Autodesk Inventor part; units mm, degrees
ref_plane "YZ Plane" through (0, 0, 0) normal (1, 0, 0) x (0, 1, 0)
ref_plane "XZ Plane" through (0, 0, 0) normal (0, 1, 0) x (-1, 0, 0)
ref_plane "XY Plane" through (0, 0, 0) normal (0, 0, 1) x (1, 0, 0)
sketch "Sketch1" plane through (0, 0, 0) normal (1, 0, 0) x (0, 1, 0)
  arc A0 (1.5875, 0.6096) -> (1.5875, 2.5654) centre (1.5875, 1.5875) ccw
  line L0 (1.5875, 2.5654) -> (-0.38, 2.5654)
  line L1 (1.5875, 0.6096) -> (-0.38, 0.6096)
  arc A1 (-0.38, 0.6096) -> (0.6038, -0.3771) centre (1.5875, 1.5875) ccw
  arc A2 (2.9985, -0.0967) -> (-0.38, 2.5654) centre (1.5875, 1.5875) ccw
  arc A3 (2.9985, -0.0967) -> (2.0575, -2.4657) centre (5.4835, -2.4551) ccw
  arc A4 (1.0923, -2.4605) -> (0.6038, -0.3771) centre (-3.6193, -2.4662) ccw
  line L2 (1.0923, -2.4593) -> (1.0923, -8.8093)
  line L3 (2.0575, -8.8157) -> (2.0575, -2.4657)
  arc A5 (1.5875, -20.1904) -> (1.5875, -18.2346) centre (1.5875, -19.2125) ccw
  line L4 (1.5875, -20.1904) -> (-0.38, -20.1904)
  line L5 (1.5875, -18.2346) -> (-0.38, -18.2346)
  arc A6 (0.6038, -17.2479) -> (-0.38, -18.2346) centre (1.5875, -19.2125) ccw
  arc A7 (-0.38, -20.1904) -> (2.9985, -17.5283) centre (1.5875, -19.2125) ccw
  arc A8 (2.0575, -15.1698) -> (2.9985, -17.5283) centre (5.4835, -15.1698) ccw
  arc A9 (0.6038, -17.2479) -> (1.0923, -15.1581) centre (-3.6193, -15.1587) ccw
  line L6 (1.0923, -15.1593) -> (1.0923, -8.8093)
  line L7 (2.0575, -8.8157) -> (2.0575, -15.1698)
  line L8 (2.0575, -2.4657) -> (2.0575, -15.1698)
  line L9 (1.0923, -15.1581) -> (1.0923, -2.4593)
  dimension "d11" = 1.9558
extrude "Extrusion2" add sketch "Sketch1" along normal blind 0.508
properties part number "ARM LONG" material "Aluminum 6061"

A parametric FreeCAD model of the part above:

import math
import FreeCAD as App
import Part
import Sketcher
Q = App.Units.Quantity

doc = App.newDocument("Part")
body = doc.addObject("PartDesign::Body", "Body")

# Sketch on YZ plane
sketch1 = doc.addObject("Sketcher::SketchObject", "Sketch")
body.addObject(sketch1)
sketch1.AttachmentSupport = (doc.YZ_Plane, [""])
sketch1.MapMode = "FlatFace"
sketch1.addGeometry([
    Part.ArcOfCircle(Part.Circle(App.Vector(1.5875, 1.5875, 0), App.Vector(0, 0, 1), 0.9779), math.radians(-90), math.radians(90)),  # 0
    Part.LineSegment(App.Vector(1.5875, 0.6096, 0), App.Vector(-0.38, 0.6096, 0)),  # 1
    Part.ArcOfCircle(Part.Circle(App.Vector(1.5875, 1.5875, 0), App.Vector(0, 0, 1), 2.197122), math.radians(-153.571398), math.radians(-116.597706)),  # 2
    Part.ArcOfCircle(Part.Circle(App.Vector(-3.6193, -2.4662, 0), App.Vector(0, 0, 1), 4.711603), math.radians(0.069315), math.radians(26.320866)),  # 3
    Part.LineSegment(App.Vector(1.0923, -2.4605, 0), App.Vector(1.0923, -15.1581, 0)),  # 4
    Part.ArcOfCircle(Part.Circle(App.Vector(-3.6193, -15.1587, 0), App.Vector(0, 0, 1), 4.711617), math.radians(-26.321956), math.radians(0.007296)),  # 5
    Part.ArcOfCircle(Part.Circle(App.Vector(1.5875, -19.2125, 0), App.Vector(0, 0, 1), 2.197122), math.radians(116.597706), math.radians(153.571398)),  # 6
    Part.LineSegment(App.Vector(-0.38, -18.2346, 0), App.Vector(1.5875, -18.2346, 0)),  # 7
    Part.ArcOfCircle(Part.Circle(App.Vector(1.5875, -19.2125, 0), App.Vector(0, 0, 1), 0.9779), math.radians(-90), math.radians(90)),  # 8
    Part.LineSegment(App.Vector(1.5875, -20.1904, 0), App.Vector(-0.38, -20.1904, 0)),  # 9
    Part.ArcOfCircle(Part.Circle(App.Vector(1.5875, -19.2125, 0), App.Vector(0, 0, 1), 2.197122), math.radians(-153.571398), math.radians(50.04418)),  # 10
    Part.ArcOfCircle(Part.Circle(App.Vector(5.4835, -15.1698, 0), App.Vector(0, 0, 1), 3.426), math.radians(180), math.radians(223.503919)),  # 11
    Part.LineSegment(App.Vector(2.0575, -15.1698, 0), App.Vector(2.0575, -2.4657, 0)),  # 12
    Part.ArcOfCircle(Part.Circle(App.Vector(5.4835, -2.4551, 0), App.Vector(0, 0, 1), 3.425971), math.radians(136.497294), math.radians(180.177272)),  # 13
    Part.ArcOfCircle(Part.Circle(App.Vector(1.5875, 1.5875, 0), App.Vector(0, 0, 1), 2.197146), math.radians(-50.04418), math.radians(153.571398)),  # 14
    Part.LineSegment(App.Vector(-0.38, 2.5654, 0), App.Vector(1.5875, 2.5654, 0)),  # 15
], False)
sketch1.addConstraint([
    Sketcher.Constraint("Coincident", 0, 1, 1, 1),
    Sketcher.Constraint("Coincident", 1, 2, 2, 1),
    Sketcher.Constraint("Coincident", 2, 2, 3, 2),
    Sketcher.Constraint("Coincident", 3, 1, 4, 1),
    Sketcher.Constraint("Coincident", 4, 2, 5, 2),
    Sketcher.Constraint("Coincident", 5, 1, 6, 1),
    Sketcher.Constraint("Coincident", 6, 2, 7, 1),
    Sketcher.Constraint("Coincident", 7, 2, 8, 2),
    Sketcher.Constraint("Coincident", 8, 1, 9, 1),
    Sketcher.Constraint("Coincident", 9, 2, 10, 1),
    Sketcher.Constraint("Coincident", 10, 2, 11, 2),
    Sketcher.Constraint("Coincident", 11, 1, 12, 1),
    Sketcher.Constraint("Coincident", 12, 2, 13, 2),
    Sketcher.Constraint("Coincident", 13, 1, 14, 1),
    Sketcher.Constraint("Coincident", 14, 2, 15, 1),
    Sketcher.Constraint("Coincident", 15, 2, 0, 2),
    Sketcher.Constraint("Horizontal", 1),
    Sketcher.Constraint("Vertical", 4),
    Sketcher.Constraint("Horizontal", 7),
    Sketcher.Constraint("Horizontal", 9),
    Sketcher.Constraint("Vertical", 12),
    Sketcher.Constraint("Horizontal", 15),
    Sketcher.Constraint("Coincident", 2, 3, 0, 3),
    Sketcher.Constraint("Coincident", 8, 3, 6, 3),
    Sketcher.Constraint("Coincident", 10, 3, 6, 3),
    Sketcher.Constraint("Coincident", 14, 3, 0, 3),
    Sketcher.Constraint("Radius", 0, Q("0.0385 in")),
    Sketcher.Constraint("Radius", 8, Q("0.0385 in")),
    Sketcher.Constraint("Radius", 2, Q("0.0865 in")),
    Sketcher.Constraint("Radius", 3, Q("0.1855 in")),
    Sketcher.Constraint("Radius", 5, Q("0.1855 in")),
    Sketcher.Constraint("Radius", 6, Q("0.0865 in")),
    Sketcher.Constraint("Radius", 10, Q("0.0865 in")),
    Sketcher.Constraint("Radius", 14, Q("0.0865 in")),
    Sketcher.Constraint("Radius", 11, Q("3.426 mm")),
    Sketcher.Constraint("Radius", 13, Q("3.426 mm")),
    Sketcher.Constraint("DistanceY", 4, 2, 4, 1, Q("0.4999 in")),
    Sketcher.Constraint("DistanceX", -1, 1, 0, 3, Q("0.0625 in")),
    Sketcher.Constraint("DistanceY", -1, 1, 0, 3, Q("0.0625 in")),
    Sketcher.Constraint("DistanceX", -1, 1, 6, 3, Q("0.0625 in")),
    Sketcher.Constraint("DistanceX", -1, 1, 0, 1, Q("0.0625 in")),
    Sketcher.Constraint("DistanceX", -1, 1, 3, 1, Q("0.043 in")),
    Sketcher.Constraint("DistanceX", -1, 1, 7, 2, Q("0.0625 in")),
    Sketcher.Constraint("DistanceX", -1, 1, 8, 1, Q("0.0625 in")),
    Sketcher.Constraint("DistanceX", -1, 1, 11, 1, Q("0.081 in")),
    Sketcher.Constraint("DistanceX", -1, 1, 15, 2, Q("0.0625 in")),
    Sketcher.Constraint("DistanceY", 12, 1, 12, 2, Q("12.704 mm")),
    Sketcher.Constraint("DistanceY", 3, 3, -1, 1, Q("0.0971 in")),
    Sketcher.Constraint("DistanceY", 5, 3, -1, 1, Q("0.5968 in")),
    Sketcher.Constraint("DistanceY", 6, 3, -1, 1, Q("0.7564 in")),
    Sketcher.Constraint("DistanceY", 10, 2, -1, 1, Q("0.6901 in")),
    Sketcher.Constraint("DistanceY", 13, 1, -1, 1, Q("0.0038 in")),
    Sketcher.Constraint("DistanceY", 12, 2, 3, 1, Q("0.0002 in")),
    Sketcher.Constraint("DistanceY", 3, 1, -1, 1, Q("2.4605 mm")),
])
pad1 = doc.addObject("PartDesign::Pad", "Pad")
body.addObject(pad1)
pad1.Profile = sketch1
pad1.Length = Q("0.02 in")

doc.recompute()
